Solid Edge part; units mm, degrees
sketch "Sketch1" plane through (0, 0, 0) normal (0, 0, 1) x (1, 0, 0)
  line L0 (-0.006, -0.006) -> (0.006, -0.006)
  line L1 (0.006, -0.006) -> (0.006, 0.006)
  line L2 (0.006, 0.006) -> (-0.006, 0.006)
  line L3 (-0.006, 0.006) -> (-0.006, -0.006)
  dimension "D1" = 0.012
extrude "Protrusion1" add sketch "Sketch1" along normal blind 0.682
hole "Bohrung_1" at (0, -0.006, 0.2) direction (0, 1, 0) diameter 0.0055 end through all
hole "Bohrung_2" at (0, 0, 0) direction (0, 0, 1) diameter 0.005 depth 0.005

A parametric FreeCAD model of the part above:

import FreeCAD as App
import Part
import Sketcher
Q = App.Units.Quantity


def add_polygon(sketch, points):
    """Adds a closed chain of lines whose ends are joined by coincident constraints."""
    first, n = sketch.GeometryCount, len(points)
    for a, b in zip(points, points[1:] + points[:1]):
        sketch.addGeometry(Part.LineSegment(App.Vector(*a, 0), App.Vector(*b, 0)), False)
    for i in range(n):
        sketch.addConstraint(Sketcher.Constraint("Coincident", first + i, 2, first + (i + 1) % n, 1))

doc = App.newDocument("Part")
params = doc.addObject("Spreadsheet::Sheet", "Params")
for row, (alias, value) in enumerate([
    ("pad1_length", "0.682 mm"),
    ("hole_diameter", "0.0055 mm"),
    ("hole2_diameter", "0.005 mm"),
    ("hole2_depth", "0.005 mm"),
], start=1):
    params.set(f"A{row}", alias)
    params.set(f"B{row}", "=" + value)
    params.setAlias(f"B{row}", alias)

body = doc.addObject("PartDesign::Body", "Body")

# Sketch on XY plane
sketch1 = body.newObject("Sketcher::SketchObject", "Sketch")
sketch1.AttachmentSupport = (doc.getObject("XY_Plane"), [""])
sketch1.MapMode = "FlatFace"
add_polygon(sketch1, [(-0.006, 0.006), (-0.006, -0.006), (0.006, -0.006), (0.006, 0.006)])  # lines 0-3
sketch1.addConstraint(Sketcher.Constraint("Vertical", 0))
sketch1.addConstraint(Sketcher.Constraint("Horizontal", 1))
sketch1.addConstraint(Sketcher.Constraint("Vertical", 2))
sketch1.addConstraint(Sketcher.Constraint("Horizontal", 3))
sketch1.addConstraint(Sketcher.Constraint("Symmetric", 0, 2, 2, 2, -1, 1))
sketch1.addConstraint(Sketcher.Constraint("Equal", 3, 0))
sketch1.addConstraint(Sketcher.Constraint("DistanceX", 0, 2, -1, 1, Q("0.006 mm")))
pad1 = body.newObject("PartDesign::Pad", "Pad")
pad1.Profile = sketch1
pad1.setExpression("Length", "Params.pad1_length")

# Sketch on XZ plane
sketch2 = body.newObject("Sketcher::SketchObject", "Sketch001")
sketch2.AttachmentSupport = (doc.getObject("XZ_Plane"), [""])
sketch2.MapMode = "FlatFace"
sketch2.AttachmentOffset = App.Placement(App.Vector(0, 0, 0.006), App.Rotation())
sketch2.addGeometry(Part.Circle(App.Vector(0, 0.2, 0), App.Vector(0, 0, 1), 0.0027), False)
sketch2.addConstraint(Sketcher.Constraint("PointOnObject", 0, 3, -2))
sketch2.addConstraint(Sketcher.Constraint("Diameter", 0, Q("0.0055 mm")))
sketch2.addConstraint(Sketcher.Constraint("DistanceY", -1, 1, 0, 3, Q("0.2 mm")))
doc.recompute()
hole = body.newObject("PartDesign::Hole", "Hole")
hole.Profile = sketch2
hole.ThreadType = "None"
hole.setExpression("Diameter", "Params.hole_diameter")
hole.DepthType = "ThroughAll"

# Sketch on XY plane
sketch3 = body.newObject("Sketcher::SketchObject", "Sketch002")
sketch3.AttachmentSupport = (doc.getObject("XY_Plane"), [""])
sketch3.MapMode = "FlatFace"
sketch3.addGeometry(Part.Circle(App.Vector(0, 0, 0), App.Vector(0, 0, 1), 0.0025), False)
sketch3.addConstraint(Sketcher.Constraint("Coincident", 0, 3, -1, 1))
sketch3.addConstraint(Sketcher.Constraint("Diameter", 0, Q("0.005 mm")))
doc.recompute()
hole2 = body.newObject("PartDesign::Hole", "Hole001")
hole2.Profile = sketch3
hole2.ThreadType = "None"
hole2.setExpression("Diameter", "Params.hole2_diameter")
hole2.DepthType = "Dimension"
hole2.setExpression("Depth", "Params.hole2_depth")
hole2.DrillPoint = "Flat"
hole2.Reversed = True

doc.recompute()
